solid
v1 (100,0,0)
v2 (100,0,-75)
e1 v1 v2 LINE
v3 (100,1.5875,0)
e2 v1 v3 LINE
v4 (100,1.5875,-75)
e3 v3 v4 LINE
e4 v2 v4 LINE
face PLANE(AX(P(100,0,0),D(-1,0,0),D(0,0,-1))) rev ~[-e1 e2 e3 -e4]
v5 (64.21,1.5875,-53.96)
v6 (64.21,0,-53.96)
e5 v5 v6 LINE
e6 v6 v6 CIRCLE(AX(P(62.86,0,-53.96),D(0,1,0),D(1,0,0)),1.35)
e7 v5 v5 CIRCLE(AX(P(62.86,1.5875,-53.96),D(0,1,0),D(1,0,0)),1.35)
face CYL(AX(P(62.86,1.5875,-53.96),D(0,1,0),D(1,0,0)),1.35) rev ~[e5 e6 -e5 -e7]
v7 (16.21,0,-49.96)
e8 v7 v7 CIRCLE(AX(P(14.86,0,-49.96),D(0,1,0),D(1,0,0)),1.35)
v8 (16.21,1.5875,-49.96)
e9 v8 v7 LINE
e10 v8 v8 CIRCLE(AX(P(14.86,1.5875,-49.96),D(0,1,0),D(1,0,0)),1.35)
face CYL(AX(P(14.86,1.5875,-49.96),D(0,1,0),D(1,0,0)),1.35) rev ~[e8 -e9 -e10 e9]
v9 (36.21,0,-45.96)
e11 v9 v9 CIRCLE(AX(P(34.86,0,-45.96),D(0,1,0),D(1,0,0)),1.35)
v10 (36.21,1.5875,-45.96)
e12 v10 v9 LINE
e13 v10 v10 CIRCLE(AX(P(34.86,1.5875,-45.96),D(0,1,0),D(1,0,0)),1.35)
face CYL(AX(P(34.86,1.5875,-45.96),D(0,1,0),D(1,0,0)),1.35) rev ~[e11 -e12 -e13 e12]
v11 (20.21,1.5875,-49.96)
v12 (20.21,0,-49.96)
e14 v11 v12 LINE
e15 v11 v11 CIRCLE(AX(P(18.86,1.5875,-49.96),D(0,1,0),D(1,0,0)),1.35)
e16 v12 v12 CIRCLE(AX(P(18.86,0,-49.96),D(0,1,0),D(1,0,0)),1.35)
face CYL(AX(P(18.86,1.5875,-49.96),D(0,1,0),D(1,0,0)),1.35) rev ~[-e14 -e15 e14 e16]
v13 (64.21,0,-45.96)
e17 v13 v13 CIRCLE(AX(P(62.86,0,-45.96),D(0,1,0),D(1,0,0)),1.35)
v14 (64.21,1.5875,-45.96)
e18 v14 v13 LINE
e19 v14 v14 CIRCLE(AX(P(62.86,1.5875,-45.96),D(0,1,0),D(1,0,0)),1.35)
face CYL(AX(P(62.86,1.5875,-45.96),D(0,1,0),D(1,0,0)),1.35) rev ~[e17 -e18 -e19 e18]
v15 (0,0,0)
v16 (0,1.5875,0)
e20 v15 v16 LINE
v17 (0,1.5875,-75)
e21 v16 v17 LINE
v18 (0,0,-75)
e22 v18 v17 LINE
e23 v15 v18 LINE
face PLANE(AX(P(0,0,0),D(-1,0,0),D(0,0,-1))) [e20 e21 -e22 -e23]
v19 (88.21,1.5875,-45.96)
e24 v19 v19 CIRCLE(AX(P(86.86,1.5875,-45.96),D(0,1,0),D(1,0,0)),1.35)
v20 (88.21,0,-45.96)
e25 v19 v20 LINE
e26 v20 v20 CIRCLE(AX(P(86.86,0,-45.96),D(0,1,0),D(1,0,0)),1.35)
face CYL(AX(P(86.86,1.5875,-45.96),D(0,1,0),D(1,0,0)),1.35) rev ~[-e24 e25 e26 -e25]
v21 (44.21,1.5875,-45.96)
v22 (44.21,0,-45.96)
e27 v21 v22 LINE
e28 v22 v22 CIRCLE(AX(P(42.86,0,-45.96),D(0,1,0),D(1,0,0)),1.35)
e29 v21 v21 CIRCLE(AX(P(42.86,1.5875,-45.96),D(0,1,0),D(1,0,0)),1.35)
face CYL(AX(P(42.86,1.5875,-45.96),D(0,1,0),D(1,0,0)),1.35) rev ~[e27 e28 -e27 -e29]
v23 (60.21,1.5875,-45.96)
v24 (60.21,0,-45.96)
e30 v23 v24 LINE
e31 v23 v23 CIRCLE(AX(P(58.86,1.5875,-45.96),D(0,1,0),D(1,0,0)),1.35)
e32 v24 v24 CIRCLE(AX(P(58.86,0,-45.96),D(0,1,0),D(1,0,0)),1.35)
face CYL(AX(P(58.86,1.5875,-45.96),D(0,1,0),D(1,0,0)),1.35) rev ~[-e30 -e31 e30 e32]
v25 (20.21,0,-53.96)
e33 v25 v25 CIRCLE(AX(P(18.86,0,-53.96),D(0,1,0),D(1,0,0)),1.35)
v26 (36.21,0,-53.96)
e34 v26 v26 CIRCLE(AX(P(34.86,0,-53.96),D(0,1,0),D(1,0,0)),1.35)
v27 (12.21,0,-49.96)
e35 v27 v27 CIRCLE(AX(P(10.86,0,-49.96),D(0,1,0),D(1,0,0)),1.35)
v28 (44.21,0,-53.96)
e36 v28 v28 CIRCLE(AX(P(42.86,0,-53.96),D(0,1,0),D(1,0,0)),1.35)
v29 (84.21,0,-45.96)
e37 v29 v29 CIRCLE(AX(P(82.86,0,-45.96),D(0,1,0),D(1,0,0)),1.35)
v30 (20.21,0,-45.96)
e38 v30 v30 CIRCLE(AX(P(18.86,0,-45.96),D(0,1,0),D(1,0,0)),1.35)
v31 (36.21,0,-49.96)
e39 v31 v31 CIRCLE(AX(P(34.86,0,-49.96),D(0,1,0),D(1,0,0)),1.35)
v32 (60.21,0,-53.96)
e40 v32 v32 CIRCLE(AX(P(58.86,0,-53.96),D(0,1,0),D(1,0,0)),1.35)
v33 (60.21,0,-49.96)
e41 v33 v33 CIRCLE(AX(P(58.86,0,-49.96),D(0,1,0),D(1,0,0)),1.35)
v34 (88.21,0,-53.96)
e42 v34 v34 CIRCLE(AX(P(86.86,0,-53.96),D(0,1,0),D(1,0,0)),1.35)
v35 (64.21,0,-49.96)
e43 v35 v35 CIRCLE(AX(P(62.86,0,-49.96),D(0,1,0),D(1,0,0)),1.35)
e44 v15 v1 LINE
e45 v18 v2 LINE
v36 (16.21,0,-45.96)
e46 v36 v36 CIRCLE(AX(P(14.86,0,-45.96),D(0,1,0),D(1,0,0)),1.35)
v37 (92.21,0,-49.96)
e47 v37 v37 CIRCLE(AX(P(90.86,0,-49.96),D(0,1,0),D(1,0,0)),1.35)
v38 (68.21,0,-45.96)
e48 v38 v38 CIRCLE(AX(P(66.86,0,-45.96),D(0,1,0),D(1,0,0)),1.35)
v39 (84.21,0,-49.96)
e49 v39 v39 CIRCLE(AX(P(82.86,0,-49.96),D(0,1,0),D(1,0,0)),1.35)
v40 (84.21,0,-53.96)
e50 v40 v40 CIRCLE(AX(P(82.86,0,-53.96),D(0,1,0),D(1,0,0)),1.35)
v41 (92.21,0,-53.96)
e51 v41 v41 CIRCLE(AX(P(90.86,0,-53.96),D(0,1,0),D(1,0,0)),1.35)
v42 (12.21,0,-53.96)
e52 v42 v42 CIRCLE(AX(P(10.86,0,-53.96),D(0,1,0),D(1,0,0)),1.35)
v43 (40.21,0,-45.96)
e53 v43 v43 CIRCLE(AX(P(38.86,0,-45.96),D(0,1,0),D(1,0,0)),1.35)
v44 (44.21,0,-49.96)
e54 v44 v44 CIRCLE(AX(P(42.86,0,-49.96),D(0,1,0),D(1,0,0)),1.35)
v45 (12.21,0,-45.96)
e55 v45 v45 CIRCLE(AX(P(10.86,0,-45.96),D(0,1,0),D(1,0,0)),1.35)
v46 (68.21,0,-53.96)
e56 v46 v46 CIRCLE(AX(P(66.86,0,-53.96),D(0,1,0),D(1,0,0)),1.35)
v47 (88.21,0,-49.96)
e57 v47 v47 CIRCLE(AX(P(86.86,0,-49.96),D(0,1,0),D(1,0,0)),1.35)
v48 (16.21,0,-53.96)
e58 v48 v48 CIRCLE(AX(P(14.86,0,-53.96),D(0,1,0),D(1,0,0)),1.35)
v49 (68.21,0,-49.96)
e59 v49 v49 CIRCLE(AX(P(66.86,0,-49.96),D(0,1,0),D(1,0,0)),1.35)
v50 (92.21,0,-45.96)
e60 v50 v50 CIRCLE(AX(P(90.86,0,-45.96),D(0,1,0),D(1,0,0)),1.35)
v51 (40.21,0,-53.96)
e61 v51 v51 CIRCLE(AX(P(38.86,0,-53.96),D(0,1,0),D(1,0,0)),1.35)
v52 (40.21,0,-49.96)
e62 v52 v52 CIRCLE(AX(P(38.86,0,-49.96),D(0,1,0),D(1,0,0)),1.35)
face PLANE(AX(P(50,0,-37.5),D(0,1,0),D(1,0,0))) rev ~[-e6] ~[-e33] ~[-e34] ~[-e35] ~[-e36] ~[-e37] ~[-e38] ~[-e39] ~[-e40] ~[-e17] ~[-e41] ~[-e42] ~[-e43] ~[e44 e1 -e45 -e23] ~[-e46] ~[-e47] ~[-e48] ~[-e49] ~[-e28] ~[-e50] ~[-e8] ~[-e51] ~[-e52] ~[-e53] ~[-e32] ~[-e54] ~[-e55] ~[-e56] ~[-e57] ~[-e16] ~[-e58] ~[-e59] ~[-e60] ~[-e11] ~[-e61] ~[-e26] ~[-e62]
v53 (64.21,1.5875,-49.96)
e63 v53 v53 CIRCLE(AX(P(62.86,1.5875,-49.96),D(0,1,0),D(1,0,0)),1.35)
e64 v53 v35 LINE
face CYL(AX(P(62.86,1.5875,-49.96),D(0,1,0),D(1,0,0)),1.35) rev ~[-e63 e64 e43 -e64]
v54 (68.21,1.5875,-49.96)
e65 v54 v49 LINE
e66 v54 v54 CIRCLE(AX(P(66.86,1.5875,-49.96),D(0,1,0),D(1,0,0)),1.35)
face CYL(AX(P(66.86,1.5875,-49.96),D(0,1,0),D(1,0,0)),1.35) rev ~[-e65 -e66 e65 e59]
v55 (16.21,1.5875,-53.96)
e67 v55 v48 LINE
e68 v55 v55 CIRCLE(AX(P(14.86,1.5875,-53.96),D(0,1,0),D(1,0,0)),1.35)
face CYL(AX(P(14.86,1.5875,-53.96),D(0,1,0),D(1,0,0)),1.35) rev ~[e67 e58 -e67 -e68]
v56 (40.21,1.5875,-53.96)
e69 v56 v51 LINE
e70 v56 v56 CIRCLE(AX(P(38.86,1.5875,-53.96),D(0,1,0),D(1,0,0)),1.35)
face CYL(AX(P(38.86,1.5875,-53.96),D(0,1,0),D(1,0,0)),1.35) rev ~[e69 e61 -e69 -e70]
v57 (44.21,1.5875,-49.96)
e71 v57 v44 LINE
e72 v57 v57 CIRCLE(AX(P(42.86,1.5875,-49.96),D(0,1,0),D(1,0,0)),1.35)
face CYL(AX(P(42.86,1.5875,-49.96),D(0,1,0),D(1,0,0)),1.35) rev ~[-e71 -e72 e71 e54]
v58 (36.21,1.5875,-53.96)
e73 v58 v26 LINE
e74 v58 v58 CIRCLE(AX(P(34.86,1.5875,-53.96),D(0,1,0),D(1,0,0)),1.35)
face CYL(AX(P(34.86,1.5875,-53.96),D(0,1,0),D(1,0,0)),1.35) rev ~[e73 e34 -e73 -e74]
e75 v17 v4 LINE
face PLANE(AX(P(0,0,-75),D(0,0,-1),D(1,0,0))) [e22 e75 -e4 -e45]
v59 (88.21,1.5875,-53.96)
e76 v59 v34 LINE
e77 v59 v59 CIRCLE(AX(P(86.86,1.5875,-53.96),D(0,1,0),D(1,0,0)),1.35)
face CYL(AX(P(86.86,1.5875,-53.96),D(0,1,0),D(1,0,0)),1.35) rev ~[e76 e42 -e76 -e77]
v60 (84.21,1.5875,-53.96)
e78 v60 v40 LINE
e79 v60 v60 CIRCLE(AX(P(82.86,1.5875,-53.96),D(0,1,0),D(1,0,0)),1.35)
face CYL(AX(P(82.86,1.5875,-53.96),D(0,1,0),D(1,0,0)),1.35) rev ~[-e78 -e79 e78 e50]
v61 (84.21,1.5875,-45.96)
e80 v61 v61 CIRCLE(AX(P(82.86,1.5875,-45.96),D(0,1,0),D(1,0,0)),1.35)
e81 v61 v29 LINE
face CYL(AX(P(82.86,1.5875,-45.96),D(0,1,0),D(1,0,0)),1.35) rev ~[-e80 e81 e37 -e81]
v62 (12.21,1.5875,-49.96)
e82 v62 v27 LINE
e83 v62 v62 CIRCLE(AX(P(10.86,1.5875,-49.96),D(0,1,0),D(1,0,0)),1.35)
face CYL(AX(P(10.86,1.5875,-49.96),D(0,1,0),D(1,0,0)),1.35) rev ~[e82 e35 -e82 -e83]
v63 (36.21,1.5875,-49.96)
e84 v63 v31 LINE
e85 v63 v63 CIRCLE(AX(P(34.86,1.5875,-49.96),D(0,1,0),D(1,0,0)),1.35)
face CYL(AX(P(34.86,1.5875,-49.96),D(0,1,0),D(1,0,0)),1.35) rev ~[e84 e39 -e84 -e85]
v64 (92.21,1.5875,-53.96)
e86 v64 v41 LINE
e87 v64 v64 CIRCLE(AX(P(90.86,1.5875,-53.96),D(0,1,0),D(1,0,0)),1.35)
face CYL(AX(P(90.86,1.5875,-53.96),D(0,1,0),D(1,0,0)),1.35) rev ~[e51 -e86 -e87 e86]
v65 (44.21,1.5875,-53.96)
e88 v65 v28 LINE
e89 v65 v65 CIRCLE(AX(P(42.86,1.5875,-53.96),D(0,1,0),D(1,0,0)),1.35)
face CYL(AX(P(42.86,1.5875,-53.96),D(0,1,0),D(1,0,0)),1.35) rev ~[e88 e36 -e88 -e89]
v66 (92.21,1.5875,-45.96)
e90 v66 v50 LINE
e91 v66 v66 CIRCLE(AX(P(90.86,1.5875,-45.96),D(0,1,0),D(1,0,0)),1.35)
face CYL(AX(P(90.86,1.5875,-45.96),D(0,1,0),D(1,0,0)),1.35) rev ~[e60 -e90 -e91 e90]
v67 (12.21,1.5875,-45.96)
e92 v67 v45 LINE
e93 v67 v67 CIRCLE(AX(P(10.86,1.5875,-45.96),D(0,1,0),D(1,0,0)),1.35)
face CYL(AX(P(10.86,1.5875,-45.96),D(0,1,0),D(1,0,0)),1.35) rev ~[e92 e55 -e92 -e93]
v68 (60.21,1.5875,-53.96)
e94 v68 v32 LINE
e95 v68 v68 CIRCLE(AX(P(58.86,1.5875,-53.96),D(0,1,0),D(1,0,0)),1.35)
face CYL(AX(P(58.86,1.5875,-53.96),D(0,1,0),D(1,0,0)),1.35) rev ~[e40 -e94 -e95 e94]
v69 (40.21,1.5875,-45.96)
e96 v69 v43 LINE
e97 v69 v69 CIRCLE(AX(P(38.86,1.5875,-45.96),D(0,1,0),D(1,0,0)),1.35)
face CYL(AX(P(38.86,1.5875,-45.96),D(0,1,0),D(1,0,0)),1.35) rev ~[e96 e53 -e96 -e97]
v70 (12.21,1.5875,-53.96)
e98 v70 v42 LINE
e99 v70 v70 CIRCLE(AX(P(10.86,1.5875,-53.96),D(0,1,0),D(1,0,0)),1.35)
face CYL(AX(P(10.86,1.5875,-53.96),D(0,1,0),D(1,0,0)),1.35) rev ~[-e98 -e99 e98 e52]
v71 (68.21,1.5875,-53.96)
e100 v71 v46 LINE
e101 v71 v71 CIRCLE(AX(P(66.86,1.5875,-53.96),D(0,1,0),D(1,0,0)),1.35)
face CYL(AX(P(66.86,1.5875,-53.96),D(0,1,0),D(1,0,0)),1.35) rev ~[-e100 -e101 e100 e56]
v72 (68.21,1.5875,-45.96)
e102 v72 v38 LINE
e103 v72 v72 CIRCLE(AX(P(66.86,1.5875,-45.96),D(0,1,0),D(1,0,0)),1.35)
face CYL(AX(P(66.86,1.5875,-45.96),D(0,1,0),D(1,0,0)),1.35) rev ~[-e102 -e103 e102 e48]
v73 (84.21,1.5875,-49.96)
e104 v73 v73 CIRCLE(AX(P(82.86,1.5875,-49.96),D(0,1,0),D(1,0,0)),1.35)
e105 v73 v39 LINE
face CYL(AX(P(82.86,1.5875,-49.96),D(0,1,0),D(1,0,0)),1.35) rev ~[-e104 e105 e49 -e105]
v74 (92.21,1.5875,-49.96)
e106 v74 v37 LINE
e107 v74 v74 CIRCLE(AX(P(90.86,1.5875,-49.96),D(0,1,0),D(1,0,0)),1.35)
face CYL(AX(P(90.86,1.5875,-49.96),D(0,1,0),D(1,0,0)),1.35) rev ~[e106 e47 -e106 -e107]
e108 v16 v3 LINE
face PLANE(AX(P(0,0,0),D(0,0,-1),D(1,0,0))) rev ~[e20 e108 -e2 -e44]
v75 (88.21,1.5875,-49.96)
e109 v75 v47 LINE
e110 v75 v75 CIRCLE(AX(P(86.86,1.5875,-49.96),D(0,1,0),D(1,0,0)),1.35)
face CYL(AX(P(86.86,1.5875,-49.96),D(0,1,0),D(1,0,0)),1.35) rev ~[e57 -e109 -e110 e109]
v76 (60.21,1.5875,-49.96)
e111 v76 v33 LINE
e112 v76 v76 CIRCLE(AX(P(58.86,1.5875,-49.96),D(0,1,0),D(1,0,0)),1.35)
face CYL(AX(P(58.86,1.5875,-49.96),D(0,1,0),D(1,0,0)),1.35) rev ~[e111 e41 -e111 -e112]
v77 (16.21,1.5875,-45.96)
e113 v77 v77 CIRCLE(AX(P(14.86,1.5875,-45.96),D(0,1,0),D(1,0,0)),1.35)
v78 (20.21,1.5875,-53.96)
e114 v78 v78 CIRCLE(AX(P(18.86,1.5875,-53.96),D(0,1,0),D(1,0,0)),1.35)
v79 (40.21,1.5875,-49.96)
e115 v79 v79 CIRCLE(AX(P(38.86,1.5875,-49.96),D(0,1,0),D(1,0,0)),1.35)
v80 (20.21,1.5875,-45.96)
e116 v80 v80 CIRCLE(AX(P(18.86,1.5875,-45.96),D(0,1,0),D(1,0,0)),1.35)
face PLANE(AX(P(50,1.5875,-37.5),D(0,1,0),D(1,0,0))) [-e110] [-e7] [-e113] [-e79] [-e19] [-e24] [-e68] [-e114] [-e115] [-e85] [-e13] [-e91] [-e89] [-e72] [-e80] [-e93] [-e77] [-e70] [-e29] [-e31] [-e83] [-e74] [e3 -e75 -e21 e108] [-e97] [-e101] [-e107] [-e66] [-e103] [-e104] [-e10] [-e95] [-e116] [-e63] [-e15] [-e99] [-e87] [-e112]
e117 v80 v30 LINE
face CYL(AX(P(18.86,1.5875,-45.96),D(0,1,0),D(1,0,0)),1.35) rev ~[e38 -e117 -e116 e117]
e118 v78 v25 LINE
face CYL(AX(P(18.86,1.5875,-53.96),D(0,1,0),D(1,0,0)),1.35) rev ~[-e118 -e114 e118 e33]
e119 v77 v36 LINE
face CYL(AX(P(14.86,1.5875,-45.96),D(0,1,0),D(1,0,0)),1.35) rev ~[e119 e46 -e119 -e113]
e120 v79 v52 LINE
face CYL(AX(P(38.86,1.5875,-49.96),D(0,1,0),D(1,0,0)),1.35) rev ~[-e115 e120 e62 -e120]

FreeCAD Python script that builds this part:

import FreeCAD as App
import Part
import Sketcher

V = App.Vector


def add_polygon(sketch, points):
    """Adds a closed chain of lines whose ends are joined by coincident constraints."""
    first, n = sketch.GeometryCount, len(points)
    for a, b in zip(points, points[1:] + points[:1]):
        sketch.addGeometry(Part.LineSegment(App.Vector(*a, 0), App.Vector(*b, 0)), False)
    for i in range(n):
        sketch.addConstraint(Sketcher.Constraint("Coincident", first + i, 2, first + (i + 1) % n, 1))

doc = App.newDocument("Part")
body = doc.addObject("PartDesign::Body", "Body")

sketch1 = doc.addObject("Sketcher::SketchObject", "Sketch")
body.addObject(sketch1)
sketch1.AttachmentSupport = (doc.XZ_Plane, [""])
sketch1.MapMode = "FlatFace"
add_polygon(sketch1, [(0, -75), (0, 0), (100, 0), (100, -75)])
sketch1.addConstraint([
    Sketcher.Constraint("Vertical", 0),
    Sketcher.Constraint("Horizontal", 1),
    Sketcher.Constraint("Vertical", 2),
    Sketcher.Constraint("Horizontal", 3),
    Sketcher.Constraint("Coincident", 0, 2, -1, 1),
    Sketcher.Constraint("DistanceX", 1, 1, 1, 2, 100.0),
    Sketcher.Constraint("DistanceY", 0, 1, 0, 2, 75.0),
])
pad1 = doc.addObject("PartDesign::Pad", "Pad")
body.addObject(pad1)
pad1.Profile = sketch1
pad1.Length = 1.5875
pad1.Reversed = True

sketch2 = doc.addObject("Sketcher::SketchObject", "Sketch001")
body.addObject(sketch2)
sketch2.AttachmentSupport = (doc.XZ_Plane, [""])
sketch2.MapMode = "FlatFace"
sketch2.AttachmentOffset = App.Placement(V(0, 0, -1.5875), App.Rotation())
sketch2.addGeometry([
    Part.Circle(V(10.86, -53.96, 0), V(0, 0, 1), 1.35),
    Part.Circle(V(10.86, -49.96, 0), V(0, 0, 1), 1.35),
    Part.Circle(V(10.86, -45.96, 0), V(0, 0, 1), 1.35),
    Part.Circle(V(14.86, -53.96, 0), V(0, 0, 1), 1.35),
    Part.Circle(V(14.86, -49.96, 0), V(0, 0, 1), 1.35),
    Part.Circle(V(14.86, -45.96, 0), V(0, 0, 1), 1.35),
    Part.Circle(V(18.86, -53.96, 0), V(0, 0, 1), 1.35),
    Part.Circle(V(18.86, -49.96, 0), V(0, 0, 1), 1.35),
    Part.Circle(V(18.86, -45.96, 0), V(0, 0, 1), 1.35),
    Part.Circle(V(34.86, -53.96, 0), V(0, 0, 1), 1.35),
    Part.Circle(V(34.86, -49.96, 0), V(0, 0, 1), 1.35),
    Part.Circle(V(34.86, -45.96, 0), V(0, 0, 1), 1.35),
    Part.Circle(V(38.86, -53.96, 0), V(0, 0, 1), 1.35),
    Part.Circle(V(38.86, -49.96, 0), V(0, 0, 1), 1.35),
    Part.Circle(V(38.86, -45.96, 0), V(0, 0, 1), 1.35),
    Part.Circle(V(42.86, -53.96, 0), V(0, 0, 1), 1.35),
    Part.Circle(V(42.86, -49.96, 0), V(0, 0, 1), 1.35),
    Part.Circle(V(42.86, -45.96, 0), V(0, 0, 1), 1.35),
    Part.Circle(V(58.86, -53.96, 0), V(0, 0, 1), 1.35),
    Part.Circle(V(58.86, -49.96, 0), V(0, 0, 1), 1.35),
    Part.Circle(V(58.86, -45.96, 0), V(0, 0, 1), 1.35),
    Part.Circle(V(62.86, -53.96, 0), V(0, 0, 1), 1.35),
    Part.Circle(V(62.86, -49.96, 0), V(0, 0, 1), 1.35),
    Part.Circle(V(62.86, -45.96, 0), V(0, 0, 1), 1.35),
    Part.Circle(V(66.86, -53.96, 0), V(0, 0, 1), 1.35),
    Part.Circle(V(66.86, -49.96, 0), V(0, 0, 1), 1.35),
    Part.Circle(V(66.86, -45.96, 0), V(0, 0, 1), 1.35),
    Part.Circle(V(82.86, -53.96, 0), V(0, 0, 1), 1.35),
    Part.Circle(V(82.86, -49.96, 0), V(0, 0, 1), 1.35),
    Part.Circle(V(82.86, -45.96, 0), V(0, 0, 1), 1.35),
    Part.Circle(V(86.86, -53.96, 0), V(0, 0, 1), 1.35),
    Part.Circle(V(86.86, -49.96, 0), V(0, 0, 1), 1.35),
    Part.Circle(V(86.86, -45.96, 0), V(0, 0, 1), 1.35),
    Part.Circle(V(90.86, -53.96, 0), V(0, 0, 1), 1.35),
    Part.Circle(V(90.86, -49.96, 0), V(0, 0, 1), 1.35),
    Part.Circle(V(90.86, -45.96, 0), V(0, 0, 1), 1.35),
], False)
sketch2.addConstraint([
    Sketcher.Constraint("Equal", 0, 1),
    Sketcher.Constraint("Equal", 1, 2),
    Sketcher.Constraint("Equal", 2, 3),
    Sketcher.Constraint("Equal", 3, 4),
    Sketcher.Constraint("Equal", 4, 5),
    Sketcher.Constraint("Equal", 5, 6),
    Sketcher.Constraint("Equal", 6, 7),
    Sketcher.Constraint("Equal", 7, 8),
    Sketcher.Constraint("Equal", 8, 9),
    Sketcher.Constraint("Equal", 9, 10),
    Sketcher.Constraint("Equal", 10, 11),
    Sketcher.Constraint("Equal", 11, 12),
    Sketcher.Constraint("Equal", 12, 13),
    Sketcher.Constraint("Equal", 13, 14),
    Sketcher.Constraint("Equal", 14, 15),
    Sketcher.Constraint("Equal", 15, 16),
    Sketcher.Constraint("Equal", 16, 17),
    Sketcher.Constraint("Equal", 17, 18),
    Sketcher.Constraint("Equal", 18, 19),
    Sketcher.Constraint("Equal", 19, 20),
    Sketcher.Constraint("Equal", 20, 21),
    Sketcher.Constraint("Equal", 21, 22),
    Sketcher.Constraint("Equal", 22, 23),
    Sketcher.Constraint("Equal", 23, 24),
    Sketcher.Constraint("Equal", 24, 25),
    Sketcher.Constraint("Equal", 25, 26),
    Sketcher.Constraint("Equal", 26, 27),
    Sketcher.Constraint("Equal", 27, 28),
    Sketcher.Constraint("Equal", 28, 29),
    Sketcher.Constraint("Equal", 29, 30),
    Sketcher.Constraint("Equal", 30, 31),
    Sketcher.Constraint("Equal", 31, 32),
    Sketcher.Constraint("Equal", 32, 33),
    Sketcher.Constraint("Equal", 33, 34),
    Sketcher.Constraint("Equal", 34, 35),
    Sketcher.Constraint("Horizontal", 0, 3, 3, 3),
    Sketcher.Constraint("Horizontal", 1, 3, 4, 3),
    Sketcher.Constraint("Horizontal", 2, 3, 5, 3),
    Sketcher.Constraint("Horizontal", 3, 3, 6, 3),
    Sketcher.Constraint("Horizontal", 4, 3, 7, 3),
    Sketcher.Constraint("Horizontal", 5, 3, 8, 3),
    Sketcher.Constraint("Horizontal", 6, 3, 9, 3),
    Sketcher.Constraint("Horizontal", 7, 3, 10, 3),
    Sketcher.Constraint("Horizontal", 8, 3, 11, 3),
    Sketcher.Constraint("Horizontal", 9, 3, 12, 3),
    Sketcher.Constraint("Horizontal", 10, 3, 13, 3),
    Sketcher.Constraint("Horizontal", 11, 3, 14, 3),
    Sketcher.Constraint("Horizontal", 12, 3, 15, 3),
    Sketcher.Constraint("Horizontal", 13, 3, 16, 3),
    Sketcher.Constraint("Horizontal", 14, 3, 17, 3),
    Sketcher.Constraint("Horizontal", 15, 3, 18, 3),
    Sketcher.Constraint("Horizontal", 16, 3, 19, 3),
    Sketcher.Constraint("Horizontal", 17, 3, 20, 3),
    Sketcher.Constraint("Horizontal", 18, 3, 21, 3),
    Sketcher.Constraint("Horizontal", 19, 3, 22, 3),
    Sketcher.Constraint("Horizontal", 20, 3, 23, 3),
    Sketcher.Constraint("Horizontal", 21, 3, 24, 3),
    Sketcher.Constraint("Horizontal", 22, 3, 25, 3),
    Sketcher.Constraint("Horizontal", 23, 3, 26, 3),
    Sketcher.Constraint("Horizontal", 24, 3, 27, 3),
    Sketcher.Constraint("Horizontal", 25, 3, 28, 3),
    Sketcher.Constraint("Horizontal", 26, 3, 29, 3),
    Sketcher.Constraint("Horizontal", 27, 3, 30, 3),
    Sketcher.Constraint("Horizontal", 28, 3, 31, 3),
    Sketcher.Constraint("Horizontal", 29, 3, 32, 3),
    Sketcher.Constraint("Horizontal", 30, 3, 33, 3),
    Sketcher.Constraint("Horizontal", 31, 3, 34, 3),
    Sketcher.Constraint("Horizontal", 32, 3, 35, 3),
    Sketcher.Constraint("Vertical", 0, 3, 1, 3),
    Sketcher.Constraint("Vertical", 1, 3, 2, 3),
    Sketcher.Constraint("Vertical", 3, 3, 4, 3),
    Sketcher.Constraint("Vertical", 4, 3, 5, 3),
    Sketcher.Constraint("Vertical", 6, 3, 7, 3),
    Sketcher.Constraint("Vertical", 7, 3, 8, 3),
    Sketcher.Constraint("Vertical", 9, 3, 10, 3),
    Sketcher.Constraint("Vertical", 10, 3, 11, 3),
    Sketcher.Constraint("Vertical", 12, 3, 13, 3),
    Sketcher.Constraint("Vertical", 13, 3, 14, 3),
    Sketcher.Constraint("Vertical", 15, 3, 16, 3),
    Sketcher.Constraint("Vertical", 16, 3, 17, 3),
    Sketcher.Constraint("Vertical", 18, 3, 19, 3),
    Sketcher.Constraint("Vertical", 19, 3, 20, 3),
    Sketcher.Constraint("Vertical", 21, 3, 22, 3),
    Sketcher.Constraint("Vertical", 22, 3, 23, 3),
    Sketcher.Constraint("Vertical", 24, 3, 25, 3),
    Sketcher.Constraint("Vertical", 25, 3, 26, 3),
    Sketcher.Constraint("Vertical", 27, 3, 28, 3),
    Sketcher.Constraint("Vertical", 28, 3, 29, 3),
    Sketcher.Constraint("Vertical", 30, 3, 31, 3),
    Sketcher.Constraint("Vertical", 31, 3, 32, 3),
    Sketcher.Constraint("Vertical", 33, 3, 34, 3),
    Sketcher.Constraint("Vertical", 34, 3, 35, 3),
    Sketcher.Constraint("Diameter", 0, 2.7),
    Sketcher.Constraint("DistanceY", 0, 3, 1, 3, 4.0),
    Sketcher.Constraint("DistanceY", 1, 3, 2, 3, 4.0),
    Sketcher.Constraint("DistanceX", 0, 3, 3, 3, 4.0),
    Sketcher.Constraint("DistanceX", 3, 3, 6, 3, 4.0),
    Sketcher.Constraint("DistanceX", 6, 3, 9, 3, 16.0),
    Sketcher.Constraint("DistanceX", 9, 3, 12, 3, 4.0),
    Sketcher.Constraint("DistanceX", 12, 3, 15, 3, 4.0),
    Sketcher.Constraint("DistanceX", 15, 3, 18, 3, 16.0),
    Sketcher.Constraint("DistanceX", 18, 3, 21, 3, 4.0),
    Sketcher.Constraint("DistanceX", 21, 3, 24, 3, 4.0),
    Sketcher.Constraint("DistanceX", 24, 3, 27, 3, 16.0),
    Sketcher.Constraint("DistanceX", 27, 3, 30, 3, 4.0),
    Sketcher.Constraint("DistanceX", 30, 3, 33, 3, 4.0),
    Sketcher.Constraint("DistanceX", -1, 1, 0, 3, 10.86),
    Sketcher.Constraint("DistanceY", 0, 3, -1, 1, 53.96),
])
pocket1 = doc.addObject("PartDesign::Pocket", "Pocket")
body.addObject(pocket1)
pocket1.Profile = sketch2
pocket1.Type = "ThroughAll"
pocket1.Reversed = True

doc.recompute()
